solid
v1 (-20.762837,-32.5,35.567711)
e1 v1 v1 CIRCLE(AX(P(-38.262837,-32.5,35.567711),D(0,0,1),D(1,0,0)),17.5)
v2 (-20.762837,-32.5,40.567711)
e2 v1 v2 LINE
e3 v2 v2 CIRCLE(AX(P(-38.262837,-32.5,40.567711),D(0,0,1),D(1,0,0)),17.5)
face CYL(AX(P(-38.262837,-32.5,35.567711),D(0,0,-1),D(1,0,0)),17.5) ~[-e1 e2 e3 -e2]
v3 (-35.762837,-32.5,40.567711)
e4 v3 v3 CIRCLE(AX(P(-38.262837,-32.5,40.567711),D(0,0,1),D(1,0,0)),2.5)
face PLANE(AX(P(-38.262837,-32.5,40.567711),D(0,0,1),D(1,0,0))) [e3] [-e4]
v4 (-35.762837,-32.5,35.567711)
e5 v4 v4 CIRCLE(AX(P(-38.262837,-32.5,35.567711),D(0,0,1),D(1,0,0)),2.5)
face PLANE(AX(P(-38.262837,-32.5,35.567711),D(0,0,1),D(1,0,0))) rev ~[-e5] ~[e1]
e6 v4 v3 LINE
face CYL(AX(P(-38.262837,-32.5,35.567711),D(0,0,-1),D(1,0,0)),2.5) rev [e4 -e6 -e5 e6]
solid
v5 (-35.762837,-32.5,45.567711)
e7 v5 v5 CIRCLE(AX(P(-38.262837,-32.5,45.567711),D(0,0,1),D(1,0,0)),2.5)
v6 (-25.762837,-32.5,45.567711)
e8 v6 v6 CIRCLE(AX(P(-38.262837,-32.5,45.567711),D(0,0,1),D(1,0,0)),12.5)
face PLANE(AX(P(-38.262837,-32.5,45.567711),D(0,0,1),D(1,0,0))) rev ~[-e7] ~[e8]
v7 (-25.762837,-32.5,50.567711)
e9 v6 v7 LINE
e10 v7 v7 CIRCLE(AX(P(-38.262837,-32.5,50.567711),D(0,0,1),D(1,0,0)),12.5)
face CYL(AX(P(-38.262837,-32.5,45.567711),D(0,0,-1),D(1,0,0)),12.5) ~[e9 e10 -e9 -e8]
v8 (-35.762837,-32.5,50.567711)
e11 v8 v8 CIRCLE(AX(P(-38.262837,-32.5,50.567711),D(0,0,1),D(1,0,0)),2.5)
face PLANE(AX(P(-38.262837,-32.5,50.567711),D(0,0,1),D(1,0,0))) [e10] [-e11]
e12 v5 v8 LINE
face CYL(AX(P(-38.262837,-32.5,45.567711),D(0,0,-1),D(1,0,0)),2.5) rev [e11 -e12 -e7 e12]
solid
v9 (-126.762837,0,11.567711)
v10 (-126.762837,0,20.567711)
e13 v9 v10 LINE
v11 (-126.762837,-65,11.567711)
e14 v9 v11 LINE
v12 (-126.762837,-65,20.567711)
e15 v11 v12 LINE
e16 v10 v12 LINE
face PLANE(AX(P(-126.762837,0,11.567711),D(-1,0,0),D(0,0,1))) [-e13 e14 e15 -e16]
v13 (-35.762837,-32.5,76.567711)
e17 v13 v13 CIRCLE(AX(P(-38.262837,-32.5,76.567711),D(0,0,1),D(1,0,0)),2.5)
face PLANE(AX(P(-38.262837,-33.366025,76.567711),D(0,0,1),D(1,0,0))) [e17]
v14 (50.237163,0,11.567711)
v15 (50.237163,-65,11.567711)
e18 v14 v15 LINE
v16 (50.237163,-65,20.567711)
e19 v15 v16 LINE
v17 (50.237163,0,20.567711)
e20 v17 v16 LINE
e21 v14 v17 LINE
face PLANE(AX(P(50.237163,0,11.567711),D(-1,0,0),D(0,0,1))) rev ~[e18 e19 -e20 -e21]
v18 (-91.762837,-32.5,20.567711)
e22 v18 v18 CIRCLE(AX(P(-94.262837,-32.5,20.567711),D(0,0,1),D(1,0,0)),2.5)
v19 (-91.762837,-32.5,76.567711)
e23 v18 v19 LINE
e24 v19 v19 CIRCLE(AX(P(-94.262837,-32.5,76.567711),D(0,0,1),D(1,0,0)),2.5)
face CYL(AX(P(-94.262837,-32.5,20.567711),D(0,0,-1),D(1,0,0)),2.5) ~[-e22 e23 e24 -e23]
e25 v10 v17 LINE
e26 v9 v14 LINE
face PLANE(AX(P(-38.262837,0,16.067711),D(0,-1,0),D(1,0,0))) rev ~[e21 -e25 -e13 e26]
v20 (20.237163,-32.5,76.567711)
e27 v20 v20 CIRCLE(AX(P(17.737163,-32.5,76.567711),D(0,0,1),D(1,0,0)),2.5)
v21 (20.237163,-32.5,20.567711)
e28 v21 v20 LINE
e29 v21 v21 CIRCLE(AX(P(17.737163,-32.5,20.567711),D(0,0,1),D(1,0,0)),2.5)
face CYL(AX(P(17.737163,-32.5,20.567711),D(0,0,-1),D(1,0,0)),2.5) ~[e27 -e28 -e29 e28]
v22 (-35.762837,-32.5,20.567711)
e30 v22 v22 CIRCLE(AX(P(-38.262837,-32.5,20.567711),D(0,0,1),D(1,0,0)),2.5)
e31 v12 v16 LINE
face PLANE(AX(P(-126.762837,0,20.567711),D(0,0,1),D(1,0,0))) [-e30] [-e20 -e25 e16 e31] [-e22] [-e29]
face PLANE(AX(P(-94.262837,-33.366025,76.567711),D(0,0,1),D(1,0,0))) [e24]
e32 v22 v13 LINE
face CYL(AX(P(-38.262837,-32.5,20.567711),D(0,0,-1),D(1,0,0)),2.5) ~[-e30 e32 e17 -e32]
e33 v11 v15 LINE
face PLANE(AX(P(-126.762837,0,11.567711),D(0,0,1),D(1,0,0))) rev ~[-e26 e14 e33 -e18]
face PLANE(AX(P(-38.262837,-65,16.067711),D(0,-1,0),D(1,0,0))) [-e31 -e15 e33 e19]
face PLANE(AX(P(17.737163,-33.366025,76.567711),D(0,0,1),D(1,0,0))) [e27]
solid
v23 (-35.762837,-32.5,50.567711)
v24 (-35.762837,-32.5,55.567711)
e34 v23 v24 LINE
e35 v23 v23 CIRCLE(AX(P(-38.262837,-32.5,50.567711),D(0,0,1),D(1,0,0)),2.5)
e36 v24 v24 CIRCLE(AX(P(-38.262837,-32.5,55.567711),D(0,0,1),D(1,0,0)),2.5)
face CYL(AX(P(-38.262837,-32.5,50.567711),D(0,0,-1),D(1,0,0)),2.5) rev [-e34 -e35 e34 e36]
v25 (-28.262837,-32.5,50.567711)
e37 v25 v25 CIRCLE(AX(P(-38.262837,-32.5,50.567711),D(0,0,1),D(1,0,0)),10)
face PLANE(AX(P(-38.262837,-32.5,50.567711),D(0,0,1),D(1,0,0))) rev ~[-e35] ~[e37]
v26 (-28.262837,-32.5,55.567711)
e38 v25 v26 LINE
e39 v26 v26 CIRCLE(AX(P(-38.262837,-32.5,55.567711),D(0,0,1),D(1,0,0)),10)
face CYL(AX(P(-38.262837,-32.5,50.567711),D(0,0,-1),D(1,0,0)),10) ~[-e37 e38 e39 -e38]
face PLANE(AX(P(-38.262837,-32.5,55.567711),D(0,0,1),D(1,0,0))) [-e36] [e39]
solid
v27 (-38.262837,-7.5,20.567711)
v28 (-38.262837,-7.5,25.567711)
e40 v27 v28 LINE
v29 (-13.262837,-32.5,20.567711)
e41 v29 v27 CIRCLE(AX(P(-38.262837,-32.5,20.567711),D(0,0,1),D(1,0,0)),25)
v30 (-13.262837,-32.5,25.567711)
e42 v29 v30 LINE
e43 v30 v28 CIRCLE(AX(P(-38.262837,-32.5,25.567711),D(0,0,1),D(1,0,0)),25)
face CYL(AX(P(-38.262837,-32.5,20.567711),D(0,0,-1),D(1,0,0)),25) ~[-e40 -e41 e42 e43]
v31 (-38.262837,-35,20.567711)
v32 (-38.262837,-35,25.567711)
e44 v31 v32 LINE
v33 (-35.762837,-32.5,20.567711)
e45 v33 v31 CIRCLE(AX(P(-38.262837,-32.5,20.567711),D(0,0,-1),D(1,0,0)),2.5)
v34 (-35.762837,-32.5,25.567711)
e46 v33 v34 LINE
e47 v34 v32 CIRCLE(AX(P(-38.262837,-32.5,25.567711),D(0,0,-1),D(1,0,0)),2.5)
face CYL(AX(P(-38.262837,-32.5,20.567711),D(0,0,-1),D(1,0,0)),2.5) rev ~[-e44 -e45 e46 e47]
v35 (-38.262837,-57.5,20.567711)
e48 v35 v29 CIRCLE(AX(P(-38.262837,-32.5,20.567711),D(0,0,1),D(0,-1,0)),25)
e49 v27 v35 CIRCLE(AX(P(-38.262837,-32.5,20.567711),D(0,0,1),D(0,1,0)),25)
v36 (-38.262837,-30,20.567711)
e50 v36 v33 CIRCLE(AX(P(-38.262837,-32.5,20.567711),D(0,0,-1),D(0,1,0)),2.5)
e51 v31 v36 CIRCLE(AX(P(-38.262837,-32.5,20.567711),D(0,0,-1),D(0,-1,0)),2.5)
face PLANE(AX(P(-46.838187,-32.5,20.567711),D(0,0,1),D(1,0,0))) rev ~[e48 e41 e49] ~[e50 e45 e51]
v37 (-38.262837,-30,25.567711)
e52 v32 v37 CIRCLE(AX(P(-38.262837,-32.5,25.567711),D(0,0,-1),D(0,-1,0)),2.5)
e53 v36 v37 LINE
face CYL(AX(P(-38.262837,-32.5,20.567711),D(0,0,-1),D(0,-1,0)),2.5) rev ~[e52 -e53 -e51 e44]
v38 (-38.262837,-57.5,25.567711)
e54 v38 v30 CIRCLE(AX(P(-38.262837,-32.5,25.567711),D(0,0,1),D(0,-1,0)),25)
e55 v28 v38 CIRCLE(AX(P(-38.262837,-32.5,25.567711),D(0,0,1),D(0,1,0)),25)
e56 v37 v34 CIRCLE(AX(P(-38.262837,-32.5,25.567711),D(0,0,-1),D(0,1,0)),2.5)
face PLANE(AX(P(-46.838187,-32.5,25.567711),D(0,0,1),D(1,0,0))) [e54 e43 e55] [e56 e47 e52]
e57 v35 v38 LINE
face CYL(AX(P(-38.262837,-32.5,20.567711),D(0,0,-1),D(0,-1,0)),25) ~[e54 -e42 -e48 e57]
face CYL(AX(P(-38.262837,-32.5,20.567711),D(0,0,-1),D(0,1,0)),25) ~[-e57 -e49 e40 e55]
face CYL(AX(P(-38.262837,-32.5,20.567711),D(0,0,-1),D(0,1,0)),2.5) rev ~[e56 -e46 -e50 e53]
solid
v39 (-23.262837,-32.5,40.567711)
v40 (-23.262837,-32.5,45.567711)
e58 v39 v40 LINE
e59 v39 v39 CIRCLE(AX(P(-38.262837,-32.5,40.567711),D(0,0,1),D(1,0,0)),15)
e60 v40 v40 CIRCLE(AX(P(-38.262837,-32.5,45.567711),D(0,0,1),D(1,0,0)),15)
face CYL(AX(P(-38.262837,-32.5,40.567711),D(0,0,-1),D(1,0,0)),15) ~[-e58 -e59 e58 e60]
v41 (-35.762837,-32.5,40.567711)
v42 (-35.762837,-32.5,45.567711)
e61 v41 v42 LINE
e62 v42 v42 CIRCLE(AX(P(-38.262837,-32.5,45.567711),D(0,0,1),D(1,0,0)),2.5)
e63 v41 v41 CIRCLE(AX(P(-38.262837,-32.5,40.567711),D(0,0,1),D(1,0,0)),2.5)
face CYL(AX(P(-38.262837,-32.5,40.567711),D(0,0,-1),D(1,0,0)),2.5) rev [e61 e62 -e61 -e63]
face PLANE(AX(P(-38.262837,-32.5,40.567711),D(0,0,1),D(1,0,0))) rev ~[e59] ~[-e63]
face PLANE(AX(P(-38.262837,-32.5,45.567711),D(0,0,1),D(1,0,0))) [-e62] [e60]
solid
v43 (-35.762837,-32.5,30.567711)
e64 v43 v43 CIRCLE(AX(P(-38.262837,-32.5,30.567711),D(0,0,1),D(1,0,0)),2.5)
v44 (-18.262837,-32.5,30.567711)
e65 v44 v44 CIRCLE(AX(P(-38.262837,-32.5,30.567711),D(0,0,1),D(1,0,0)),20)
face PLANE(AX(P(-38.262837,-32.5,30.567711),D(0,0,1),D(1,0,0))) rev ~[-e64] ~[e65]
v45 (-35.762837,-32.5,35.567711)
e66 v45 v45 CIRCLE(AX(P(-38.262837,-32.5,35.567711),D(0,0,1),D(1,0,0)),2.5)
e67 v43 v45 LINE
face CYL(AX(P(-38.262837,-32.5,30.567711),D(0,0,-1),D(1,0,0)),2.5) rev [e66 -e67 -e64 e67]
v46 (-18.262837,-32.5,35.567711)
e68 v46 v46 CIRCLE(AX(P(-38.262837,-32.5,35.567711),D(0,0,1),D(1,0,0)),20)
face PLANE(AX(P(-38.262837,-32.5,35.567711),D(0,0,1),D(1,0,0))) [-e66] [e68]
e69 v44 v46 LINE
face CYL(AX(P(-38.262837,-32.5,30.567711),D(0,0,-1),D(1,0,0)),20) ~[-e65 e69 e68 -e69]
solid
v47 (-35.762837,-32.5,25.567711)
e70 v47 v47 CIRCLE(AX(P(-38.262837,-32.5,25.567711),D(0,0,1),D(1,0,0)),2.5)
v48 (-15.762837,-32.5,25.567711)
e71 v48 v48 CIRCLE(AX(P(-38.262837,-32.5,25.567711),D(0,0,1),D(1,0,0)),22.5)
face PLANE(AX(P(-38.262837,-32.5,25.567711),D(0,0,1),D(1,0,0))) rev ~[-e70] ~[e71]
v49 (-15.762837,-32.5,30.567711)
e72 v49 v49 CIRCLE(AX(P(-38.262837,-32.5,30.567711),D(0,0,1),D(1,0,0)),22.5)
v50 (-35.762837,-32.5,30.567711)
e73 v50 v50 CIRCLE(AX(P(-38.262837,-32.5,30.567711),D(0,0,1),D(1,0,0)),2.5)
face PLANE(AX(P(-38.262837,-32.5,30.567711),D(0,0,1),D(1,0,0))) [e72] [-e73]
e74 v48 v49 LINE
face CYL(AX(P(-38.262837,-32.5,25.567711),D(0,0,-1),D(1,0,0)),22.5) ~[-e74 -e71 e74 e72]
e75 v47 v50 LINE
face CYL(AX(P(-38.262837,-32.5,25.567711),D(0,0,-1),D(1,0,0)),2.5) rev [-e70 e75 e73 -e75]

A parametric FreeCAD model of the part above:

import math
import FreeCAD as App
import Part
import Sketcher
from FreeCAD import Vector


def add_polygon(sketch, points):
    """Adds a closed chain of lines whose ends are joined by coincident constraints."""
    first, n = sketch.GeometryCount, len(points)
    for a, b in zip(points, points[1:] + points[:1]):
        sketch.addGeometry(Part.LineSegment(App.Vector(*a, 0), App.Vector(*b, 0)), False)
    for i in range(n):
        sketch.addConstraint(Sketcher.Constraint("Coincident", first + i, 2, first + (i + 1) % n, 1))

doc = App.newDocument("Part")
params = doc.addObject("Spreadsheet::Sheet", "Params")
for row, (alias, value) in enumerate([
    ("sketch1_width", "177 mm"),
    ("sketch1_height", "9 mm"),
    ("pad1_length", "65 mm"),
    ("sketch2_diameter", "5 mm"),
    ("pad2_length", "56 mm"),
    ("sketch3_radius", "25 mm"),
    ("sketch3_radius2", "2.5 mm"),
    ("pad3_length", "5 mm"),
    ("sketch4_diameter", "45 mm"),
    ("sketch4_diameter2", "5 mm"),
    ("pad4_length", "5 mm"),
    ("sketch5_diameter", "40 mm"),
    ("sketch5_diameter2", "5 mm"),
    ("pad5_length", "5 mm"),
    ("sketch6_diameter", "35 mm"),
    ("sketch6_diameter2", "5 mm"),
    ("pad6_length", "5 mm"),
    ("sketch7_diameter", "30 mm"),
    ("sketch7_diameter2", "5 mm"),
    ("pad7_length", "5 mm"),
    ("sketch8_diameter", "25 mm"),
    ("sketch8_diameter2", "5 mm"),
    ("pad8_length", "5 mm"),
    ("sketch9_diameter", "20 mm"),
    ("sketch9_diameter2", "5 mm"),
    ("pad9_length", "5 mm"),
], start=1):
    params.set(f"A{row}", alias)
    params.set(f"B{row}", "=" + value)
    params.setAlias(f"B{row}", alias)

body = doc.addObject("PartDesign::Body", "Body")

# Sketch on XZ plane
sketch1 = doc.addObject("Sketcher::SketchObject", "Sketch")
body.addObject(sketch1)
sketch1.AttachmentSupport = (doc.XZ_Plane, [""])
sketch1.MapMode = "FlatFace"
add_polygon(sketch1, [(-127, 21), (-127, 12), (50, 12), (50, 21)])  # lines 0-3
sketch1.addConstraint([
    Sketcher.Constraint("Vertical", 0),
    Sketcher.Constraint("Horizontal", 1),
    Sketcher.Constraint("Vertical", 2),
    Sketcher.Constraint("Horizontal", 3),
    Sketcher.Constraint("DistanceX", 1, 1, 1, 2, 177.0),
    Sketcher.Constraint("DistanceY", 0, 2, 0, 1, 9.0),
    Sketcher.Constraint("DistanceY", -1, 1, 0, 2, 11.567711),
    Sketcher.Constraint("DistanceX", 0, 2, -1, 1, 126.762837),
])
sketch1.setExpression("Constraints[8]", "Params.sketch1_width")
sketch1.setExpression("Constraints[9]", "Params.sketch1_height")
pad1 = doc.addObject("PartDesign::Pad", "Pad")
body.addObject(pad1)
pad1.Profile = sketch1
pad1.setExpression("Length", "Params.pad1_length")

# Sketch on XY plane
sketch2 = doc.addObject("Sketcher::SketchObject", "Sketch001")
body.addObject(sketch2)
sketch2.AttachmentSupport = (doc.XY_Plane, [""])
sketch2.MapMode = "FlatFace"
sketch2.AttachmentOffset = App.Placement(Vector(0, 0, 20.567711), App.Rotation())
sketch2.addGeometry([
    Part.Circle(Vector(17.7, -32.5, 0), Vector(0, 0, 1), 2.5),
    Part.Circle(Vector(-38.3, -32.5, 0), Vector(0, 0, 1), 2.5),
    Part.Circle(Vector(-94.3, -32.5, 0), Vector(0, 0, 1), 2.5),
], False)
sketch2.addConstraint([
    Sketcher.Constraint("Equal", 0, 1),
    Sketcher.Constraint("Equal", 1, 2),
    Sketcher.Constraint("Horizontal", 0, 3, 1, 3),
    Sketcher.Constraint("Horizontal", 1, 3, 2, 3),
    Sketcher.Constraint("Diameter", 0, 5.0),
    Sketcher.Constraint("DistanceX", 1, 3, 0, 3, 56.0),
    Sketcher.Constraint("DistanceX", 2, 3, 1, 3, 56.0),
    Sketcher.Constraint("DistanceY", 0, 3, -1, 1, 32.5),
    Sketcher.Constraint("DistanceX", -1, 1, 0, 3, 17.737163),
])
sketch2.setExpression("Constraints[4]", "Params.sketch2_diameter")
pad2 = doc.addObject("PartDesign::Pad", "Pad001")
body.addObject(pad2)
pad2.Profile = sketch2
pad2.setExpression("Length", "Params.pad2_length")
body2 = doc.addObject("PartDesign::Body", "Body001")

# Sketch on XY plane
sketch3 = doc.addObject("Sketcher::SketchObject", "Sketch002")
body2.addObject(sketch3)
sketch3.AttachmentSupport = (doc.getObject("XY_Plane001"), [""])
sketch3.MapMode = "FlatFace"
sketch3.AttachmentOffset = App.Placement(Vector(0, 0, 20.567711), App.Rotation())
sketch3.addGeometry([
    Part.ArcOfCircle(Part.Circle(Vector(-38.3, -32.5, 0), Vector(0, 0, 1), 25), math.radians(90), math.radians(270)),  # 0
    Part.ArcOfCircle(Part.Circle(Vector(-38.3, -32.5, 0), Vector(0, 0, 1), 25), math.radians(-90), math.radians(0)),  # 1
    Part.ArcOfCircle(Part.Circle(Vector(-38.3, -32.5, 0), Vector(0, 0, 1), 25), math.radians(0), math.radians(90)),  # 2
    Part.ArcOfCircle(Part.Circle(Vector(-38.3, -32.5, 0), Vector(0, 0, 1), 2.5), math.radians(90), math.radians(270)),  # 3
    Part.ArcOfCircle(Part.Circle(Vector(-38.3, -32.5, 0), Vector(0, 0, 1), 2.5), math.radians(0), math.radians(90)),  # 4
    Part.ArcOfCircle(Part.Circle(Vector(-38.3, -32.5, 0), Vector(0, 0, 1), 2.5), math.radians(-90), math.radians(0)),  # 5
], False)
sketch3.addConstraint([
    Sketcher.Constraint("Tangent", 0, 2, 1, 1),
    Sketcher.Constraint("Tangent", 1, 2, 2, 1),
    Sketcher.Constraint("Tangent", 2, 2, 0, 1),
    Sketcher.Constraint("Tangent", 3, 1, 4, 2),
    Sketcher.Constraint("Tangent", 4, 1, 5, 2),
    Sketcher.Constraint("Tangent", 5, 1, 3, 2),
    Sketcher.Constraint("Coincident", 3, 3, 0, 3),
    Sketcher.Constraint("Horizontal", 5, 3, 1, 2),
    Sketcher.Constraint("Horizontal", 1, 2, 4, 1),
    Sketcher.Constraint("Vertical", 5, 3, 0, 2),
    Sketcher.Constraint("Vertical", 0, 2, 2, 2),
    Sketcher.Constraint("Vertical", 2, 2, 3, 1),
    Sketcher.Constraint("Vertical", 3, 1, 5, 1),
    Sketcher.Constraint("Radius", 0, 25.0),
    Sketcher.Constraint("Radius", 3, 2.5),
    Sketcher.Constraint("DistanceY", 3, 1, -1, 1, 30.0),
    Sketcher.Constraint("DistanceX", 0, 3, -1, 1, 38.262837),
])
sketch3.setExpression("Constraints[13]", "Params.sketch3_radius")
sketch3.setExpression("Constraints[14]", "Params.sketch3_radius2")
pad3 = doc.addObject("PartDesign::Pad", "Pad002")
body2.addObject(pad3)
pad3.Profile = sketch3
pad3.setExpression("Length", "Params.pad3_length")
body3 = doc.addObject("PartDesign::Body", "Body002")

# Sketch on XY plane
sketch4 = doc.addObject("Sketcher::SketchObject", "Sketch003")
body3.addObject(sketch4)
sketch4.AttachmentSupport = (doc.getObject("XY_Plane002"), [""])
sketch4.MapMode = "FlatFace"
sketch4.AttachmentOffset = App.Placement(Vector(0, 0, 25.567711), App.Rotation())
sketch4.addGeometry([
    Part.Circle(Vector(-38.3, -32.5, 0), Vector(0, 0, 1), 22.5),
    Part.Circle(Vector(-38.3, -32.5, 0), Vector(0, 0, 1), 2.5),
], False)
sketch4.addConstraint([
    Sketcher.Constraint("Coincident", 1, 3, 0, 3),
    Sketcher.Constraint("Diameter", 0, 45.0),
    Sketcher.Constraint("Diameter", 1, 5.0),
    Sketcher.Constraint("DistanceY", 0, 3, -1, 1, 32.5),
    Sketcher.Constraint("DistanceX", 0, 3, -1, 1, 38.262837),
])
sketch4.setExpression("Constraints[1]", "Params.sketch4_diameter")
sketch4.setExpression("Constraints[2]", "Params.sketch4_diameter2")
pad4 = doc.addObject("PartDesign::Pad", "Pad003")
body3.addObject(pad4)
pad4.Profile = sketch4
pad4.setExpression("Length", "Params.pad4_length")
body4 = doc.addObject("PartDesign::Body", "Body003")

# Sketch on XY plane
sketch5 = doc.addObject("Sketcher::SketchObject", "Sketch004")
body4.addObject(sketch5)
sketch5.AttachmentSupport = (doc.getObject("XY_Plane003"), [""])
sketch5.MapMode = "FlatFace"
sketch5.AttachmentOffset = App.Placement(Vector(0, 0, 30.567711), App.Rotation())
sketch5.addGeometry([
    Part.Circle(Vector(-38.3, -32.5, 0), Vector(0, 0, 1), 20),
    Part.Circle(Vector(-38.3, -32.5, 0), Vector(0, 0, 1), 2.5),
], False)
sketch5.addConstraint([
    Sketcher.Constraint("Coincident", 1, 3, 0, 3),
    Sketcher.Constraint("Diameter", 0, 40.0),
    Sketcher.Constraint("Diameter", 1, 5.0),
    Sketcher.Constraint("DistanceY", 0, 3, -1, 1, 32.5),
    Sketcher.Constraint("DistanceX", 0, 3, -1, 1, 38.262837),
])
sketch5.setExpression("Constraints[1]", "Params.sketch5_diameter")
sketch5.setExpression("Constraints[2]", "Params.sketch5_diameter2")
pad5 = doc.addObject("PartDesign::Pad", "Pad004")
body4.addObject(pad5)
pad5.Profile = sketch5
pad5.setExpression("Length", "Params.pad5_length")
body5 = doc.addObject("PartDesign::Body", "Body004")

# Sketch on XY plane
sketch6 = doc.addObject("Sketcher::SketchObject", "Sketch005")
body5.addObject(sketch6)
sketch6.AttachmentSupport = (doc.getObject("XY_Plane004"), [""])
sketch6.MapMode = "FlatFace"
sketch6.AttachmentOffset = App.Placement(Vector(0, 0, 35.567711), App.Rotation())
sketch6.addGeometry([
    Part.Circle(Vector(-38.3, -32.5, 0), Vector(0, 0, 1), 17.5),
    Part.Circle(Vector(-38.3, -32.5, 0), Vector(0, 0, 1), 2.5),
], False)
sketch6.addConstraint([
    Sketcher.Constraint("Coincident", 1, 3, 0, 3),
    Sketcher.Constraint("Diameter", 0, 35.0),
    Sketcher.Constraint("Diameter", 1, 5.0),
    Sketcher.Constraint("DistanceY", 0, 3, -1, 1, 32.5),
    Sketcher.Constraint("DistanceX", 0, 3, -1, 1, 38.262837),
])
sketch6.setExpression("Constraints[1]", "Params.sketch6_diameter")
sketch6.setExpression("Constraints[2]", "Params.sketch6_diameter2")
pad6 = doc.addObject("PartDesign::Pad", "Pad005")
body5.addObject(pad6)
pad6.Profile = sketch6
pad6.setExpression("Length", "Params.pad6_length")
body6 = doc.addObject("PartDesign::Body", "Body005")

# Sketch on XY plane
sketch7 = doc.addObject("Sketcher::SketchObject", "Sketch006")
body6.addObject(sketch7)
sketch7.AttachmentSupport = (doc.getObject("XY_Plane005"), [""])
sketch7.MapMode = "FlatFace"
sketch7.AttachmentOffset = App.Placement(Vector(0, 0, 40.567711), App.Rotation())
sketch7.addGeometry([
    Part.Circle(Vector(-38.3, -32.5, 0), Vector(0, 0, 1), 15),
    Part.Circle(Vector(-38.3, -32.5, 0), Vector(0, 0, 1), 2.5),
], False)
sketch7.addConstraint([
    Sketcher.Constraint("Coincident", 1, 3, 0, 3),
    Sketcher.Constraint("Diameter", 0, 30.0),
    Sketcher.Constraint("Diameter", 1, 5.0),
    Sketcher.Constraint("DistanceY", 0, 3, -1, 1, 32.5),
    Sketcher.Constraint("DistanceX", 0, 3, -1, 1, 38.262837),
])
sketch7.setExpression("Constraints[1]", "Params.sketch7_diameter")
sketch7.setExpression("Constraints[2]", "Params.sketch7_diameter2")
pad7 = doc.addObject("PartDesign::Pad", "Pad006")
body6.addObject(pad7)
pad7.Profile = sketch7
pad7.setExpression("Length", "Params.pad7_length")
body7 = doc.addObject("PartDesign::Body", "Body006")

# Sketch on XY plane
sketch8 = doc.addObject("Sketcher::SketchObject", "Sketch007")
body7.addObject(sketch8)
sketch8.AttachmentSupport = (doc.getObject("XY_Plane006"), [""])
sketch8.MapMode = "FlatFace"
sketch8.AttachmentOffset = App.Placement(Vector(0, 0, 45.567711), App.Rotation())
sketch8.addGeometry([
    Part.Circle(Vector(-38.3, -32.5, 0), Vector(0, 0, 1), 12.5),
    Part.Circle(Vector(-38.3, -32.5, 0), Vector(0, 0, 1), 2.5),
], False)
sketch8.addConstraint([
    Sketcher.Constraint("Coincident", 1, 3, 0, 3),
    Sketcher.Constraint("Diameter", 0, 25.0),
    Sketcher.Constraint("Diameter", 1, 5.0),
    Sketcher.Constraint("DistanceY", 0, 3, -1, 1, 32.5),
    Sketcher.Constraint("DistanceX", 0, 3, -1, 1, 38.262837),
])
sketch8.setExpression("Constraints[1]", "Params.sketch8_diameter")
sketch8.setExpression("Constraints[2]", "Params.sketch8_diameter2")
pad8 = doc.addObject("PartDesign::Pad", "Pad007")
body7.addObject(pad8)
pad8.Profile = sketch8
pad8.setExpression("Length", "Params.pad8_length")
body8 = doc.addObject("PartDesign::Body", "Body007")

# Sketch on XY plane
sketch9 = doc.addObject("Sketcher::SketchObject", "Sketch008")
body8.addObject(sketch9)
sketch9.AttachmentSupport = (doc.getObject("XY_Plane007"), [""])
sketch9.MapMode = "FlatFace"
sketch9.AttachmentOffset = App.Placement(Vector(0, 0, 50.567711), App.Rotation())
sketch9.addGeometry([
    Part.Circle(Vector(-38.3, -32.5, 0), Vector(0, 0, 1), 10),
    Part.Circle(Vector(-38.3, -32.5, 0), Vector(0, 0, 1), 2.5),
], False)
sketch9.addConstraint([
    Sketcher.Constraint("Coincident", 1, 3, 0, 3),
    Sketcher.Constraint("Diameter", 0, 20.0),
    Sketcher.Constraint("Diameter", 1, 5.0),
    Sketcher.Constraint("DistanceY", 0, 3, -1, 1, 32.5),
    Sketcher.Constraint("DistanceX", 0, 3, -1, 1, 38.262837),
])
sketch9.setExpression("Constraints[1]", "Params.sketch9_diameter")
sketch9.setExpression("Constraints[2]", "Params.sketch9_diameter2")
pad9 = doc.addObject("PartDesign::Pad", "Pad008")
body8.addObject(pad9)
pad9.Profile = sketch9
pad9.setExpression("Length", "Params.pad9_length")

doc.recompute()
